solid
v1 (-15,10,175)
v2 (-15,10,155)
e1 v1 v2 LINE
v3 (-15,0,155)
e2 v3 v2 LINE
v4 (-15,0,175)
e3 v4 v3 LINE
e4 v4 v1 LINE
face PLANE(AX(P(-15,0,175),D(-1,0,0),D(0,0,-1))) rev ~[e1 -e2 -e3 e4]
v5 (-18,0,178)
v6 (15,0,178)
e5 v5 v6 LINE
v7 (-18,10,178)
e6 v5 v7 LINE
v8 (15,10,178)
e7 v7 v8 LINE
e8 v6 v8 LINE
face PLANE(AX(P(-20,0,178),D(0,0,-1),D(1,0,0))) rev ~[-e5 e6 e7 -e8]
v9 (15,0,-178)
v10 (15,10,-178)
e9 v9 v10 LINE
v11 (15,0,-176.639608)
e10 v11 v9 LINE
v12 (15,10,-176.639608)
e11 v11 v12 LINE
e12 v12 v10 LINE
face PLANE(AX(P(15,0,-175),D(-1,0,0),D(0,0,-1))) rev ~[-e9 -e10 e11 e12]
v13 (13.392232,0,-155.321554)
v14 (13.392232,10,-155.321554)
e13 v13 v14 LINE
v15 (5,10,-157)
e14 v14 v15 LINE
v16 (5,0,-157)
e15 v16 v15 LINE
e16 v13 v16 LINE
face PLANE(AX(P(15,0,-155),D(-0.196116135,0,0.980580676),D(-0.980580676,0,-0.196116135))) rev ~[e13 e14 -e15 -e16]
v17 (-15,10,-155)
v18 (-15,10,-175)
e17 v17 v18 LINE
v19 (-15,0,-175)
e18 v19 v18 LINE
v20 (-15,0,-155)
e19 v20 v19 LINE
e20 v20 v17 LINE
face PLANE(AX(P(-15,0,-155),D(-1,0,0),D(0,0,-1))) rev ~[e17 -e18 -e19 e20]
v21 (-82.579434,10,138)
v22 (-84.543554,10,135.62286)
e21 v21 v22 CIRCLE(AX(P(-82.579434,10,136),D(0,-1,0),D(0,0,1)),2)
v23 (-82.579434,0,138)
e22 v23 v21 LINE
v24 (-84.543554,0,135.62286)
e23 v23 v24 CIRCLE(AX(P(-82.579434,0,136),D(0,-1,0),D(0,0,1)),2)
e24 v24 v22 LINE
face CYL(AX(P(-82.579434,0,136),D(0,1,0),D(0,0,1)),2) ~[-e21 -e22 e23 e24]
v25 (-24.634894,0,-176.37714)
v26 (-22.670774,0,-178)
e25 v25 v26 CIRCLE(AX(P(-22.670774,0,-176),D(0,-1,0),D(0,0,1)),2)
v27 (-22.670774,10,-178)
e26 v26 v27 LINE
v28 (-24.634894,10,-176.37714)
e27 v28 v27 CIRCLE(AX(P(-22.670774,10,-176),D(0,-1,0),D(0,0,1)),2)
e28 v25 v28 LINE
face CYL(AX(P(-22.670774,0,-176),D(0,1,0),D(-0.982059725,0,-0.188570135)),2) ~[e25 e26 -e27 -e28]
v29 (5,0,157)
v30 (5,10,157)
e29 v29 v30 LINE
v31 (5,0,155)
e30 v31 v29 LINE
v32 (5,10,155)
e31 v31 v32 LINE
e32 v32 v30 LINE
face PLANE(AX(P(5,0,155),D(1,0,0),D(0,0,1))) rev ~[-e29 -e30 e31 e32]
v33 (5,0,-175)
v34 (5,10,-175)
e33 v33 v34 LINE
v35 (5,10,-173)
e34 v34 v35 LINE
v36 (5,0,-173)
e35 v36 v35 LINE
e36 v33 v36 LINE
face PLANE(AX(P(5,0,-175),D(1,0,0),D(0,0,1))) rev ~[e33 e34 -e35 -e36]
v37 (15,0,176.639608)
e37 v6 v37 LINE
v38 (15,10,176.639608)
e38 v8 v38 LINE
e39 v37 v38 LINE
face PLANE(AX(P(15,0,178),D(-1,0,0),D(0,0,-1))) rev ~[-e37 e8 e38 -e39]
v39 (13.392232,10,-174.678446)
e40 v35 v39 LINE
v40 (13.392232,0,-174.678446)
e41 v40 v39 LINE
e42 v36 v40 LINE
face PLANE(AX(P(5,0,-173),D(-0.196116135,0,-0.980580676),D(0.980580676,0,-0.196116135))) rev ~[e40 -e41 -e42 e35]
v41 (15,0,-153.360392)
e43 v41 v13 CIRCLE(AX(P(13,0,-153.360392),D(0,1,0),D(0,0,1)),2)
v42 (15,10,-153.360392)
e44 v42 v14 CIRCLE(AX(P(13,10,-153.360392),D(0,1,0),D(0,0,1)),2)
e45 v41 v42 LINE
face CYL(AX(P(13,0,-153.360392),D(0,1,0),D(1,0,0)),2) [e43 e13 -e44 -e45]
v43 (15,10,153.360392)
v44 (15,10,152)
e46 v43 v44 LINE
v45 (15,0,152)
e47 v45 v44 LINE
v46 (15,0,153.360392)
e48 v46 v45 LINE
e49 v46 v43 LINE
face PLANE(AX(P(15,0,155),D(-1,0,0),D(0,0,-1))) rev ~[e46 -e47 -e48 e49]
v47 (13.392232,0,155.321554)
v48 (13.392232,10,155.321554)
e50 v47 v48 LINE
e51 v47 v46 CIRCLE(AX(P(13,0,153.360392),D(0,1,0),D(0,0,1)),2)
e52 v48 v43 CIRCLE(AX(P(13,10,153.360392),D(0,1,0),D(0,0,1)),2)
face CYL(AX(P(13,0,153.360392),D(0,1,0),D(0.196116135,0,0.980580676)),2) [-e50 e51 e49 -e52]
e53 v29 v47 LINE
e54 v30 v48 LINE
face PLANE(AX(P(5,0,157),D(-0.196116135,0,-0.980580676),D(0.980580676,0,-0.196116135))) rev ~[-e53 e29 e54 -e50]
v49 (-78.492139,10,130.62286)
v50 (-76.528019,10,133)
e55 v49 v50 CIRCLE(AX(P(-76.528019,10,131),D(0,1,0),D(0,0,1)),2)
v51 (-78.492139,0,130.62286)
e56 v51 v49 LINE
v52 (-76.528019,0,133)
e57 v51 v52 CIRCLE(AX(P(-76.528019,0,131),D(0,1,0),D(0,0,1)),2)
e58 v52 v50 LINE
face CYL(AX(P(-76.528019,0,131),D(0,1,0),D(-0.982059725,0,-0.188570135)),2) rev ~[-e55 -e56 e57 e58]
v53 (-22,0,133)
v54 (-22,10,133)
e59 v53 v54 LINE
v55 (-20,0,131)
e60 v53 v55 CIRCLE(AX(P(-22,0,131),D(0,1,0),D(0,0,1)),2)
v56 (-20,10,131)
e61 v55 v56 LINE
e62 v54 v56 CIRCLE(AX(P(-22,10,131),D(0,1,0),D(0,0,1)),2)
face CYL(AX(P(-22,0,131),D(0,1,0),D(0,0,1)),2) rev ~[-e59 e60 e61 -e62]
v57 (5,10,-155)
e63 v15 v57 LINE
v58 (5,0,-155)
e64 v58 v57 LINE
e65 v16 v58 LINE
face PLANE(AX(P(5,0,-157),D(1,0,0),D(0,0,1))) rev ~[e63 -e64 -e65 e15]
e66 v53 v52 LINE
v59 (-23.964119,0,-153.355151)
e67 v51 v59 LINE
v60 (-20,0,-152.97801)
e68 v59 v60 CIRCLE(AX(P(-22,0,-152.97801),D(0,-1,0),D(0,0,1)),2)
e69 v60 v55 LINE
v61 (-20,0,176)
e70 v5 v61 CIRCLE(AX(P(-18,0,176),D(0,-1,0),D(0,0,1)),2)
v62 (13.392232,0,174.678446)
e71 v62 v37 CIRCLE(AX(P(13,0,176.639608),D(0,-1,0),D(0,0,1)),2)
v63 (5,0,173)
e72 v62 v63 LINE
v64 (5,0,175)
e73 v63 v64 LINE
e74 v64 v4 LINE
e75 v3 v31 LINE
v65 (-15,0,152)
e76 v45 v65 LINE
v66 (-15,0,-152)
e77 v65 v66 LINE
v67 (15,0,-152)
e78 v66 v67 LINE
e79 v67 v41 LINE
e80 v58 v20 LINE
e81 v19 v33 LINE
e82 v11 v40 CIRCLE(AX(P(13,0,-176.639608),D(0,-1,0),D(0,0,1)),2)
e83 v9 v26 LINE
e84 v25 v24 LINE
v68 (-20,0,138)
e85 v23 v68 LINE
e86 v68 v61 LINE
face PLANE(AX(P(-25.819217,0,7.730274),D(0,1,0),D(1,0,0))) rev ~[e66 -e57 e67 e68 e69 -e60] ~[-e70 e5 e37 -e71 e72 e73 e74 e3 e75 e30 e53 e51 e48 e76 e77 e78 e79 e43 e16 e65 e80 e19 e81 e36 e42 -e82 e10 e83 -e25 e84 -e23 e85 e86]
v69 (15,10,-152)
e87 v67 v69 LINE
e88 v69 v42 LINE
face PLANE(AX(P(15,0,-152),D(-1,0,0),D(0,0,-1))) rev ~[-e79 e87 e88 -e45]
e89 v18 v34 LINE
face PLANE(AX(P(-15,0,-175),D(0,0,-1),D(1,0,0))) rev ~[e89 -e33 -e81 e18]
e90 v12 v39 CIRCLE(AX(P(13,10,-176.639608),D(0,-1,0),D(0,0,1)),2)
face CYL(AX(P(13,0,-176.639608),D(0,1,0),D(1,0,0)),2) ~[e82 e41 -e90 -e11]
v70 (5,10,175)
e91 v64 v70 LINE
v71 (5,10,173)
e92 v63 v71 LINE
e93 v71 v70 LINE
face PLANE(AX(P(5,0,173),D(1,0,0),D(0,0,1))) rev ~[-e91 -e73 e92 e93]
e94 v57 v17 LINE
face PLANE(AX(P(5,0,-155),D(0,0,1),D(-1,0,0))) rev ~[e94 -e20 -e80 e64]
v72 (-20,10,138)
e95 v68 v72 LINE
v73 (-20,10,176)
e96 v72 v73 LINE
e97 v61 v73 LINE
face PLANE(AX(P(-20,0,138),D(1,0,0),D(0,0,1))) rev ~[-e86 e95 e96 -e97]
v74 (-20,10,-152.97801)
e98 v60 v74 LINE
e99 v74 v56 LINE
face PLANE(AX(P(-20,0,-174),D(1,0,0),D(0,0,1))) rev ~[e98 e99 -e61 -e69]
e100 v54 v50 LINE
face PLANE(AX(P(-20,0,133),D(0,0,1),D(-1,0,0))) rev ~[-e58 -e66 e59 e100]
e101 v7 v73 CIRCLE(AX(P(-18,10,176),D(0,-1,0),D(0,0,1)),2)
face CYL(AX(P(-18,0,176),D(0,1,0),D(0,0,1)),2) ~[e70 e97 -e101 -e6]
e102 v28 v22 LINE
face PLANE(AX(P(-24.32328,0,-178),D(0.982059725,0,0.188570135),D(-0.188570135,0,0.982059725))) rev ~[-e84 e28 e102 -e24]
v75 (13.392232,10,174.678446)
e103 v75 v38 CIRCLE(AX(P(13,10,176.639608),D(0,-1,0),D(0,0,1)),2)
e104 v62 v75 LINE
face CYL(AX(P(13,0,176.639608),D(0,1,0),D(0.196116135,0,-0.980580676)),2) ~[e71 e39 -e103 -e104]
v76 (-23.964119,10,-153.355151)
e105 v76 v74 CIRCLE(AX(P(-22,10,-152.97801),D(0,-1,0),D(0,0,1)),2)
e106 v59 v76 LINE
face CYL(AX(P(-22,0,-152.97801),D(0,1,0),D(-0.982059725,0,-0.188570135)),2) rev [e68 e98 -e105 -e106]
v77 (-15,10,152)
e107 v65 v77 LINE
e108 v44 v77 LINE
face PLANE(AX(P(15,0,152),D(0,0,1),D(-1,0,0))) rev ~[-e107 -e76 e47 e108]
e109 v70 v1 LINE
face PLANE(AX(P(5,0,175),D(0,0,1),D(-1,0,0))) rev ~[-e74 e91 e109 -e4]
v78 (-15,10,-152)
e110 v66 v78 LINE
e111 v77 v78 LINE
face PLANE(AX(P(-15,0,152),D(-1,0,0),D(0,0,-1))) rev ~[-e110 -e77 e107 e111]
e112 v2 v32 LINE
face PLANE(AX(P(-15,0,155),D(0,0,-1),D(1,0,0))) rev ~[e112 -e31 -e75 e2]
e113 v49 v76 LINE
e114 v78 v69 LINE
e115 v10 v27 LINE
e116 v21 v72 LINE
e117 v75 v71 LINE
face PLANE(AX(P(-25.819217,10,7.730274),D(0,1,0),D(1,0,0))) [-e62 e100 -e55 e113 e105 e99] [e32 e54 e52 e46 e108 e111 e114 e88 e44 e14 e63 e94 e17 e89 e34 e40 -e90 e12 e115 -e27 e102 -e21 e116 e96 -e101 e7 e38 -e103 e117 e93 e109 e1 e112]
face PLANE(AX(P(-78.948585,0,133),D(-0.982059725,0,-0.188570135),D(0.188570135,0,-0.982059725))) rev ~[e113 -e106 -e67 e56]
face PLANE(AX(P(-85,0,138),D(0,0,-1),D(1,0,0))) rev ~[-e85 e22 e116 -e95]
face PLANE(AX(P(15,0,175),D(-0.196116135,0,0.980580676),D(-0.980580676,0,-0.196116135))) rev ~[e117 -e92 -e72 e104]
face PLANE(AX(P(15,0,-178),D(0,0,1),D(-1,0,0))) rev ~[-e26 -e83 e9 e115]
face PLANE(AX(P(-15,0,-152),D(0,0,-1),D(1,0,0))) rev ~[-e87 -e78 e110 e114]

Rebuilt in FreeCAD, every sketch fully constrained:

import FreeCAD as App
import Part
import Sketcher
from FreeCAD import Vector


def edges_at(feature, points):
    """Names of the edges that pass closest to the given points."""
    edges = feature.Shape.Edges
    near = lambda p: min(range(len(edges)), key=lambda i: edges[i].distToShape(Part.Vertex(*p))[0])
    return sorted({f"Edge{near(p) + 1}" for p in points})


def add_polygon(sketch, points):
    """Adds a closed chain of lines whose ends are joined by coincident constraints."""
    first, n = sketch.GeometryCount, len(points)
    for a, b in zip(points, points[1:] + points[:1]):
        sketch.addGeometry(Part.LineSegment(App.Vector(*a, 0), App.Vector(*b, 0)), False)
    for i in range(n):
        sketch.addConstraint(Sketcher.Constraint("Coincident", first + i, 2, first + (i + 1) % n, 1))

doc = App.newDocument("Part")
body = doc.addObject("PartDesign::Body", "Body")

# Sketch on XZ plane
sketch1 = body.newObject("Sketcher::SketchObject", "Sketch")
sketch1.AttachmentSupport = (doc.getObject("XZ_Plane"), [""])
sketch1.MapMode = "FlatFace"
add_polygon(sketch1, [(-15, 175), (-15, 155), (5, 155), (5, 157), (15, 155), (15, 152), (-15, 152), (-15, -152), (15, -152), (15, -155), (5, -157), (5, -155), (-15, -155), (-15, -175), (5, -175), (5, -173), (15, -175), (15, -178), (-24.3, -178), (-85, 138), (-20, 138), (-20, 178), (15, 178), (15, 175), (5, 173), (5, 175)])  # lines 0-25
add_polygon(sketch1, [(-78.9, 133), (-20, -174), (-20, 133)])  # lines 26-28
sketch1.addConstraint(Sketcher.Constraint("Vertical", 0))
sketch1.addConstraint(Sketcher.Constraint("Horizontal", 1))
sketch1.addConstraint(Sketcher.Constraint("Vertical", 2))
sketch1.addConstraint(Sketcher.Constraint("Vertical", 4))
sketch1.addConstraint(Sketcher.Constraint("Horizontal", 5))
sketch1.addConstraint(Sketcher.Constraint("Vertical", 6))
sketch1.addConstraint(Sketcher.Constraint("Horizontal", 7))
sketch1.addConstraint(Sketcher.Constraint("Vertical", 8))
sketch1.addConstraint(Sketcher.Constraint("Vertical", 10))
sketch1.addConstraint(Sketcher.Constraint("Horizontal", 11))
sketch1.addConstraint(Sketcher.Constraint("Vertical", 12))
sketch1.addConstraint(Sketcher.Constraint("Horizontal", 13))
sketch1.addConstraint(Sketcher.Constraint("Vertical", 14))
sketch1.addConstraint(Sketcher.Constraint("Vertical", 16))
sketch1.addConstraint(Sketcher.Constraint("Horizontal", 17))
sketch1.addConstraint(Sketcher.Constraint("Horizontal", 19))
sketch1.addConstraint(Sketcher.Constraint("Vertical", 20))
sketch1.addConstraint(Sketcher.Constraint("Horizontal", 21))
sketch1.addConstraint(Sketcher.Constraint("Vertical", 22))
sketch1.addConstraint(Sketcher.Constraint("Vertical", 24))
sketch1.addConstraint(Sketcher.Constraint("Horizontal", 25))
sketch1.addConstraint(Sketcher.Constraint("Vertical", 27))
sketch1.addConstraint(Sketcher.Constraint("Horizontal", 28))
sketch1.addConstraint(Sketcher.Constraint("Symmetric", 4, 2, 6, 2, -1, 1))
sketch1.addConstraint(Sketcher.Constraint("Symmetric", 0, 2, 8, 2, -1, 1))
sketch1.addConstraint(Sketcher.Constraint("Symmetric", 3, 2, 11, 2, -1, 1))
sketch1.addConstraint(Sketcher.Constraint("Symmetric", 12, 2, 22, 2, -1, 1))
sketch1.addConstraint(Sketcher.Constraint("Symmetric", 15, 2, 25, 2, -1, 1))
sketch1.addConstraint(Sketcher.Constraint("Symmetric", 0, 2, 3, 2, -2))
sketch1.addConstraint(Sketcher.Constraint("Symmetric", 2, 2, 9, 2, -1))
sketch1.addConstraint(Sketcher.Constraint("Symmetric", 14, 2, 23, 2, -1))
sketch1.addConstraint(Sketcher.Constraint("Parallel", 3, 15))
sketch1.addConstraint(Sketcher.Constraint("Parallel", 9, 23))
sketch1.addConstraint(Sketcher.Constraint("Parallel", 18, 26))
sketch1.addConstraint(Sketcher.Constraint("Vertical", 10, 2, 13, 2))
sketch1.addConstraint(Sketcher.Constraint("Vertical", 20, 2, 26, 2))
sketch1.addConstraint(Sketcher.Constraint("Equal", 25, 0))
sketch1.addConstraint(Sketcher.Constraint("Equal", 8, 16))
sketch1.addConstraint(Sketcher.Constraint("Equal", 16, 22))
sketch1.addConstraint(Sketcher.Constraint("DistanceX", 1, 1, 1, 2, 20.0))
sketch1.addConstraint(Sketcher.Constraint("DistanceX", 5, 2, 5, 1, 30.0))
sketch1.addConstraint(Sketcher.Constraint("DistanceX", 19, 1, 19, 2, 65.0))
sketch1.addConstraint(Sketcher.Constraint("DistanceX", 21, 1, 21, 2, 35.0))
sketch1.addConstraint(Sketcher.Constraint("DistanceY", 2, 1, 2, 2, 2.0))
sketch1.addConstraint(Sketcher.Constraint("DistanceY", 4, 2, 4, 1, 3.0))
sketch1.addConstraint(Sketcher.Constraint("DistanceY", 6, 2, 6, 1, 304.0))
sketch1.addConstraint(Sketcher.Constraint("DistanceY", 20, 1, 20, 2, 40.0))
sketch1.addConstraint(Sketcher.Constraint("DistanceY", 27, 1, 27, 2, 307.0))
sketch1.addConstraint(Sketcher.Constraint("DistanceY", 26, 2, -1, 1, 174.0))
sketch1.addConstraint(Sketcher.Constraint("DistanceX", 17, 2, 17, 1, 39.32328))
pad1 = body.newObject("PartDesign::Pad", "Pad")
pad1.Profile = sketch1
pad1.Length = 10
pad1.Reversed = True
doc.recompute()

fillet = body.newObject("PartDesign::Fillet", "Fillet")
fillet.Base = (pad1, edges_at(pad1, [
    (-24.323, 5, -178),
    (-85, 5, 138),
    (-20, 5, 178),
    (15, 5, 175),
    (15, 5, -155),
    (15, 5, -175),
    (-20, 5, -174),
    (-20, 5, 133),
    (-78.949, 5, 133),
    (15, 5, 155),
]))
fillet.Radius = 2

doc.recompute()
